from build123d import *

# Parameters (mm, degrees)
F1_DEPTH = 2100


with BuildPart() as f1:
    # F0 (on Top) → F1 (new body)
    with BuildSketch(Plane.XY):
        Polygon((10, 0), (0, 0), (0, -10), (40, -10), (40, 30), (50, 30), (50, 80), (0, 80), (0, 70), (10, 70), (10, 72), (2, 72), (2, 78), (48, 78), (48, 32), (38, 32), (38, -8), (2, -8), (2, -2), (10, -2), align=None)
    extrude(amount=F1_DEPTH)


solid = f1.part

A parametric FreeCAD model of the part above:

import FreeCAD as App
import Part
import Sketcher

V = App.Vector


def add_polygon(sketch, points):
    """Adds a closed chain of lines whose ends are joined by coincident constraints."""
    first, n = sketch.GeometryCount, len(points)
    for a, b in zip(points, points[1:] + points[:1]):
        sketch.addGeometry(Part.LineSegment(App.Vector(*a, 0), App.Vector(*b, 0)), False)
    for i in range(n):
        sketch.addConstraint(Sketcher.Constraint("Coincident", first + i, 2, first + (i + 1) % n, 1))

doc = App.newDocument("Part")
params = doc.addObject("Spreadsheet::Sheet", "Params")
for row, (alias, value) in enumerate([
    ("sketch1_width", "10 mm"),
    ("sketch1_width2", "40 mm"),
    ("sketch1_width3", "8 mm"),
    ("sketch1_width4", "46 mm"),
    ("sketch1_height", "2 mm"),
    ("pad1_length", "2100 mm"),
], start=1):
    params.set(f"A{row}", alias)
    params.set(f"B{row}", "=" + value)
    params.setAlias(f"B{row}", alias)

body = doc.addObject("PartDesign::Body", "Body")

# Sketch on XY plane
sketch1 = body.newObject("Sketcher::SketchObject", "Sketch")
sketch1.AttachmentSupport = (doc.getObject("XY_Plane"), [""])
sketch1.MapMode = "FlatFace"
add_polygon(sketch1, [(10, 0), (0, 0), (0, -10), (40, -10), (40, 30), (50, 30), (50, 80), (0, 80), (0, 70), (10, 70), (10, 72), (2, 72), (2, 78), (48, 78), (48, 32), (38, 32), (38, -8), (2, -8), (2, -2), (10, -2)])  # lines 0-19
sketch1.addConstraint([
    Sketcher.Constraint("Horizontal", 0),
    Sketcher.Constraint("Vertical", 1),
    Sketcher.Constraint("Horizontal", 2),
    Sketcher.Constraint("Vertical", 3),
    Sketcher.Constraint("Horizontal", 4),
    Sketcher.Constraint("Vertical", 5),
    Sketcher.Constraint("Horizontal", 6),
    Sketcher.Constraint("Vertical", 7),
    Sketcher.Constraint("Horizontal", 8),
    Sketcher.Constraint("Vertical", 9),
    Sketcher.Constraint("Horizontal", 10),
    Sketcher.Constraint("Vertical", 11),
    Sketcher.Constraint("Horizontal", 12),
    Sketcher.Constraint("Vertical", 13),
    Sketcher.Constraint("Horizontal", 14),
    Sketcher.Constraint("Vertical", 15),
    Sketcher.Constraint("Horizontal", 16),
    Sketcher.Constraint("Vertical", 17),
    Sketcher.Constraint("Horizontal", 18),
    Sketcher.Constraint("Vertical", 19),
    Sketcher.Constraint("Coincident", 0, 2, -1, 1),
    Sketcher.Constraint("PointOnObject", 6, 2, -2),
    Sketcher.Constraint("Vertical", 11, 2, 16, 2),
    Sketcher.Constraint("Vertical", 9, 2, 18, 2),
    Sketcher.Constraint("Equal", 0, 4),
    Sketcher.Constraint("Equal", 8, 14),
    Sketcher.Constraint("Equal", 14, 1),
    Sketcher.Constraint("Equal", 2, 3),
    Sketcher.Constraint("Equal", 6, 5),
    Sketcher.Constraint("Equal", 1, 7),
    Sketcher.Constraint("Equal", 12, 13),
    Sketcher.Constraint("Equal", 3, 15),
    Sketcher.Constraint("Equal", 11, 17),
    Sketcher.Constraint("Equal", 9, 19),
    Sketcher.Constraint("DistanceX", 0, 2, 0, 1, 10.0),
    Sketcher.Constraint("DistanceX", 2, 1, 2, 2, 40.0),
    Sketcher.Constraint("DistanceX", 10, 2, 10, 1, 8.0),
    Sketcher.Constraint("DistanceX", 12, 1, 12, 2, 46.0),
    Sketcher.Constraint("DistanceY", 9, 1, 9, 2, 2.0),
])
sketch1.setExpression("Constraints[54]", "Params.sketch1_width")
sketch1.setExpression("Constraints[55]", "Params.sketch1_width2")
sketch1.setExpression("Constraints[56]", "Params.sketch1_width3")
sketch1.setExpression("Constraints[57]", "Params.sketch1_width4")
sketch1.setExpression("Constraints[58]", "Params.sketch1_height")
pad1 = body.newObject("PartDesign::Pad", "Pad")
pad1.Profile = sketch1
pad1.setExpression("Length", "Params.pad1_length")

doc.recompute()
